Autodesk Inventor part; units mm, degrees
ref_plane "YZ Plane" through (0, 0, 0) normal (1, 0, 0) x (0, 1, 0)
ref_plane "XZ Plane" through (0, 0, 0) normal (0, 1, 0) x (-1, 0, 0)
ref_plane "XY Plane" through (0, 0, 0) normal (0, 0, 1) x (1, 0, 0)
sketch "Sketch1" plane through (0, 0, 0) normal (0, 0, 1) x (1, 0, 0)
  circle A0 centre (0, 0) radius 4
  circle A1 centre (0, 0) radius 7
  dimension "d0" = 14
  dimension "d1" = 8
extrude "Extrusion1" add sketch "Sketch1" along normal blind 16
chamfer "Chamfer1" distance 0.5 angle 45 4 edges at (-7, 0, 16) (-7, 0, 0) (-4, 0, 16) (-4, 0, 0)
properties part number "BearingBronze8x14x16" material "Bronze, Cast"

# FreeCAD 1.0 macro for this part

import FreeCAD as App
import Part
import Sketcher


def edges_at(feature, points):
    """Names of the edges that pass closest to the given points."""
    edges = feature.Shape.Edges
    near = lambda p: min(range(len(edges)), key=lambda i: edges[i].distToShape(Part.Vertex(*p))[0])
    return sorted({f"Edge{near(p) + 1}" for p in points})

doc = App.newDocument("Part")
body = doc.addObject("PartDesign::Body", "Body")

sketch1 = doc.addObject("Sketcher::SketchObject", "Sketch")
body.addObject(sketch1)
sketch1.AttachmentSupport = (doc.XY_Plane, [""])
sketch1.MapMode = "FlatFace"
sketch1.addGeometry([
    Part.Circle(App.Vector(0, 0, 0), App.Vector(0, 0, 1), 7),
    Part.Circle(App.Vector(0, 0, 0), App.Vector(0, 0, 1), 4),
], False)
sketch1.addConstraint([
    Sketcher.Constraint("Coincident", 0, 3, -1, 1),
    Sketcher.Constraint("Coincident", 1, 3, -1, 1),
    Sketcher.Constraint("Diameter", 0, 14.0),
    Sketcher.Constraint("Diameter", 1, 8.0),
])
pad1 = doc.addObject("PartDesign::Pad", "Pad")
body.addObject(pad1)
pad1.Profile = sketch1
pad1.Length = 16
doc.recompute()

chamfer = doc.addObject("PartDesign::Chamfer", "Chamfer")
body.addObject(chamfer)
chamfer.Base = (pad1, edges_at(pad1, [
    (-7, 0, 16),
    (-7, 0, 0),
    (-4, 0, 16),
    (-4, 0, 0),
]))
chamfer.Size = 0.5

doc.recompute()
